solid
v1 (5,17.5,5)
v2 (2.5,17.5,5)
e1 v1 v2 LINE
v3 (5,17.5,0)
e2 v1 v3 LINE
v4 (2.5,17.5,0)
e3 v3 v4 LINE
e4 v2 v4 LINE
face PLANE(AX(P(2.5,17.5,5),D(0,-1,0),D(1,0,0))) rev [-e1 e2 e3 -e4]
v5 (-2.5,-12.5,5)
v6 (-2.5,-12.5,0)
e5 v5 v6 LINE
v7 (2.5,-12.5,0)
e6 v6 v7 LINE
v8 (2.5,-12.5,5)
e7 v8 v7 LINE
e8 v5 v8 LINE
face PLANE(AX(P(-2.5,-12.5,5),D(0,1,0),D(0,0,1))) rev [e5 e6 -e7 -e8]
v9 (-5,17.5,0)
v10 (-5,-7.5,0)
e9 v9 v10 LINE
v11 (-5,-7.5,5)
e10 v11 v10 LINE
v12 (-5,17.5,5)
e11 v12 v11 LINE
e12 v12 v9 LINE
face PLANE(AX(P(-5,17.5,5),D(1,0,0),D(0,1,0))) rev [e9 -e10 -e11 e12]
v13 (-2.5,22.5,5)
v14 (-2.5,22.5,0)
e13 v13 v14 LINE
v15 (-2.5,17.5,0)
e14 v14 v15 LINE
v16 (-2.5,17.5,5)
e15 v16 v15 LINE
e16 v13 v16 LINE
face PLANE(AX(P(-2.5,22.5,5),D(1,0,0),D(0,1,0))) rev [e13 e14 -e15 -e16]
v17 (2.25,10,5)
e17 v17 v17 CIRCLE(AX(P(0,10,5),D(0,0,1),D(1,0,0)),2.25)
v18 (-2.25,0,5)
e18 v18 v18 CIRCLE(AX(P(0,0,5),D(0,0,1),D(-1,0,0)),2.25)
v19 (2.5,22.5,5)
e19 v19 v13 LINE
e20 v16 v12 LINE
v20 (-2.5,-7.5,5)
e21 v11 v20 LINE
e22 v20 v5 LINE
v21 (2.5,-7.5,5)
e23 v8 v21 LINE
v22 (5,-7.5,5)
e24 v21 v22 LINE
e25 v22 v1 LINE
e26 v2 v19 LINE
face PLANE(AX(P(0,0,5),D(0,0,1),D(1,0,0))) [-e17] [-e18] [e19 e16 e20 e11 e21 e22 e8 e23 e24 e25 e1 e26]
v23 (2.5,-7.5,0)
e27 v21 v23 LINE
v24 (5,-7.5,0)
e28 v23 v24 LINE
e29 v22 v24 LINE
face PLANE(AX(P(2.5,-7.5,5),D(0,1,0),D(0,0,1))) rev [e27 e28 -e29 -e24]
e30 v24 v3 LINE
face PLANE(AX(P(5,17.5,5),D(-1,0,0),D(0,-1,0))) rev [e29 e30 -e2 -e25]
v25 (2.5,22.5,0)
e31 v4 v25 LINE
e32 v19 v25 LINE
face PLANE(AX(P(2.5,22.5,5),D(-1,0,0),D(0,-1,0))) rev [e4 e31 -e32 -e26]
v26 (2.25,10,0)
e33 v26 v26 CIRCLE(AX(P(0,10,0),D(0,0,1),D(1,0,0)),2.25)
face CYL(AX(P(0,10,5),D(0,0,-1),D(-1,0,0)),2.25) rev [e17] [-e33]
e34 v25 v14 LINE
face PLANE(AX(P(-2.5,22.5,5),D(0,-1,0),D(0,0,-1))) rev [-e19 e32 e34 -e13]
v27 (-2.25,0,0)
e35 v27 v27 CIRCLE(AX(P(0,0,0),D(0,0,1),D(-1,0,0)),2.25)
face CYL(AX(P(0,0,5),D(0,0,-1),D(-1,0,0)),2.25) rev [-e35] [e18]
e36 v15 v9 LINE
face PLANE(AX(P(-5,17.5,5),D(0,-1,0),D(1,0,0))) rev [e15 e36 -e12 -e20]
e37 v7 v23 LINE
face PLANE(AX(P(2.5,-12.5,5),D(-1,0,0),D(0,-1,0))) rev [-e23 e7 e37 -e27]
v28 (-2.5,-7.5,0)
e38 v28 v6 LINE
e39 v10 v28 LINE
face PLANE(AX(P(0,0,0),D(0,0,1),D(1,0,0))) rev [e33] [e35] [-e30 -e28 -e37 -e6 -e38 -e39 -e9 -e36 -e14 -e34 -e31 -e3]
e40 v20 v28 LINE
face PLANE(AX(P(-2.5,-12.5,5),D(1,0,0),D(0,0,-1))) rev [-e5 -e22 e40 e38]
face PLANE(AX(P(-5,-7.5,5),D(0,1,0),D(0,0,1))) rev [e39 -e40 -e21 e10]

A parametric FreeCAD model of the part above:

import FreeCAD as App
import Part
import Sketcher
from FreeCAD import Vector


def add_polygon(sketch, points):
    """Adds a closed chain of lines whose ends are joined by coincident constraints."""
    first, n = sketch.GeometryCount, len(points)
    for a, b in zip(points, points[1:] + points[:1]):
        sketch.addGeometry(Part.LineSegment(App.Vector(*a, 0), App.Vector(*b, 0)), False)
    for i in range(n):
        sketch.addConstraint(Sketcher.Constraint("Coincident", first + i, 2, first + (i + 1) % n, 1))

doc = App.newDocument("Part")
body = doc.addObject("PartDesign::Body", "Body")

# Sketch on XY plane
sketch1 = doc.addObject("Sketcher::SketchObject", "Sketch")
body.addObject(sketch1)
sketch1.AttachmentSupport = (doc.XY_Plane, [""])
sketch1.MapMode = "FlatFace"
add_polygon(sketch1, [(2.5, -7.5), (5, -7.5), (5, 17.5), (2.5, 17.5), (2.5, 22.5), (-2.5, 22.5), (-2.5, 17.5), (-5, 17.5), (-5, -7.5), (-2.5, -7.5), (-2.5, -12.5), (2.5, -12.5)])  # lines 0-11
sketch1.addGeometry(Part.Circle(Vector(0, 0, 0), Vector(0, 0, 1), 2.25), False)  # 12
sketch1.addGeometry(Part.Circle(Vector(0, 10, 0), Vector(0, 0, 1), 2.25), False)  # 13
sketch1.addConstraint([
    Sketcher.Constraint("Horizontal", 0),
    Sketcher.Constraint("Vertical", 1),
    Sketcher.Constraint("Horizontal", 2),
    Sketcher.Constraint("Vertical", 3),
    Sketcher.Constraint("Horizontal", 4),
    Sketcher.Constraint("Vertical", 5),
    Sketcher.Constraint("Horizontal", 6),
    Sketcher.Constraint("Vertical", 7),
    Sketcher.Constraint("Horizontal", 8),
    Sketcher.Constraint("Vertical", 9),
    Sketcher.Constraint("Horizontal", 10),
    Sketcher.Constraint("Vertical", 11),
    Sketcher.Constraint("Coincident", 12, 3, -1, 1),
    Sketcher.Constraint("Equal", 12, 13),
    Sketcher.Constraint("Symmetric", 2, 2, 5, 2, -2),
    Sketcher.Constraint("Symmetric", 0, 2, 7, 2, -2),
    Sketcher.Constraint("PointOnObject", 13, 3, -2),
    Sketcher.Constraint("Vertical", 5, 2, 8, 2),
    Sketcher.Constraint("Vertical", 3, 2, 10, 2),
    Sketcher.Constraint("Equal", 10, 3),
    Sketcher.Constraint("Equal", 5, 9),
    Sketcher.Constraint("Diameter", 12, 4.5),
    Sketcher.Constraint("DistanceX", 4, 2, 4, 1, 5.0),
    Sketcher.Constraint("DistanceY", 1, 1, 1, 2, 25.0),
    Sketcher.Constraint("DistanceX", 0, 1, 0, 2, 2.5),
    Sketcher.Constraint("DistanceY", -1, 1, 13, 3, 10.0),
    Sketcher.Constraint("DistanceY", 0, 2, -1, 1, 7.5),
])
pad1 = doc.addObject("PartDesign::Pad", "Pad")
body.addObject(pad1)
pad1.Profile = sketch1
pad1.Length = 5

doc.recompute()
